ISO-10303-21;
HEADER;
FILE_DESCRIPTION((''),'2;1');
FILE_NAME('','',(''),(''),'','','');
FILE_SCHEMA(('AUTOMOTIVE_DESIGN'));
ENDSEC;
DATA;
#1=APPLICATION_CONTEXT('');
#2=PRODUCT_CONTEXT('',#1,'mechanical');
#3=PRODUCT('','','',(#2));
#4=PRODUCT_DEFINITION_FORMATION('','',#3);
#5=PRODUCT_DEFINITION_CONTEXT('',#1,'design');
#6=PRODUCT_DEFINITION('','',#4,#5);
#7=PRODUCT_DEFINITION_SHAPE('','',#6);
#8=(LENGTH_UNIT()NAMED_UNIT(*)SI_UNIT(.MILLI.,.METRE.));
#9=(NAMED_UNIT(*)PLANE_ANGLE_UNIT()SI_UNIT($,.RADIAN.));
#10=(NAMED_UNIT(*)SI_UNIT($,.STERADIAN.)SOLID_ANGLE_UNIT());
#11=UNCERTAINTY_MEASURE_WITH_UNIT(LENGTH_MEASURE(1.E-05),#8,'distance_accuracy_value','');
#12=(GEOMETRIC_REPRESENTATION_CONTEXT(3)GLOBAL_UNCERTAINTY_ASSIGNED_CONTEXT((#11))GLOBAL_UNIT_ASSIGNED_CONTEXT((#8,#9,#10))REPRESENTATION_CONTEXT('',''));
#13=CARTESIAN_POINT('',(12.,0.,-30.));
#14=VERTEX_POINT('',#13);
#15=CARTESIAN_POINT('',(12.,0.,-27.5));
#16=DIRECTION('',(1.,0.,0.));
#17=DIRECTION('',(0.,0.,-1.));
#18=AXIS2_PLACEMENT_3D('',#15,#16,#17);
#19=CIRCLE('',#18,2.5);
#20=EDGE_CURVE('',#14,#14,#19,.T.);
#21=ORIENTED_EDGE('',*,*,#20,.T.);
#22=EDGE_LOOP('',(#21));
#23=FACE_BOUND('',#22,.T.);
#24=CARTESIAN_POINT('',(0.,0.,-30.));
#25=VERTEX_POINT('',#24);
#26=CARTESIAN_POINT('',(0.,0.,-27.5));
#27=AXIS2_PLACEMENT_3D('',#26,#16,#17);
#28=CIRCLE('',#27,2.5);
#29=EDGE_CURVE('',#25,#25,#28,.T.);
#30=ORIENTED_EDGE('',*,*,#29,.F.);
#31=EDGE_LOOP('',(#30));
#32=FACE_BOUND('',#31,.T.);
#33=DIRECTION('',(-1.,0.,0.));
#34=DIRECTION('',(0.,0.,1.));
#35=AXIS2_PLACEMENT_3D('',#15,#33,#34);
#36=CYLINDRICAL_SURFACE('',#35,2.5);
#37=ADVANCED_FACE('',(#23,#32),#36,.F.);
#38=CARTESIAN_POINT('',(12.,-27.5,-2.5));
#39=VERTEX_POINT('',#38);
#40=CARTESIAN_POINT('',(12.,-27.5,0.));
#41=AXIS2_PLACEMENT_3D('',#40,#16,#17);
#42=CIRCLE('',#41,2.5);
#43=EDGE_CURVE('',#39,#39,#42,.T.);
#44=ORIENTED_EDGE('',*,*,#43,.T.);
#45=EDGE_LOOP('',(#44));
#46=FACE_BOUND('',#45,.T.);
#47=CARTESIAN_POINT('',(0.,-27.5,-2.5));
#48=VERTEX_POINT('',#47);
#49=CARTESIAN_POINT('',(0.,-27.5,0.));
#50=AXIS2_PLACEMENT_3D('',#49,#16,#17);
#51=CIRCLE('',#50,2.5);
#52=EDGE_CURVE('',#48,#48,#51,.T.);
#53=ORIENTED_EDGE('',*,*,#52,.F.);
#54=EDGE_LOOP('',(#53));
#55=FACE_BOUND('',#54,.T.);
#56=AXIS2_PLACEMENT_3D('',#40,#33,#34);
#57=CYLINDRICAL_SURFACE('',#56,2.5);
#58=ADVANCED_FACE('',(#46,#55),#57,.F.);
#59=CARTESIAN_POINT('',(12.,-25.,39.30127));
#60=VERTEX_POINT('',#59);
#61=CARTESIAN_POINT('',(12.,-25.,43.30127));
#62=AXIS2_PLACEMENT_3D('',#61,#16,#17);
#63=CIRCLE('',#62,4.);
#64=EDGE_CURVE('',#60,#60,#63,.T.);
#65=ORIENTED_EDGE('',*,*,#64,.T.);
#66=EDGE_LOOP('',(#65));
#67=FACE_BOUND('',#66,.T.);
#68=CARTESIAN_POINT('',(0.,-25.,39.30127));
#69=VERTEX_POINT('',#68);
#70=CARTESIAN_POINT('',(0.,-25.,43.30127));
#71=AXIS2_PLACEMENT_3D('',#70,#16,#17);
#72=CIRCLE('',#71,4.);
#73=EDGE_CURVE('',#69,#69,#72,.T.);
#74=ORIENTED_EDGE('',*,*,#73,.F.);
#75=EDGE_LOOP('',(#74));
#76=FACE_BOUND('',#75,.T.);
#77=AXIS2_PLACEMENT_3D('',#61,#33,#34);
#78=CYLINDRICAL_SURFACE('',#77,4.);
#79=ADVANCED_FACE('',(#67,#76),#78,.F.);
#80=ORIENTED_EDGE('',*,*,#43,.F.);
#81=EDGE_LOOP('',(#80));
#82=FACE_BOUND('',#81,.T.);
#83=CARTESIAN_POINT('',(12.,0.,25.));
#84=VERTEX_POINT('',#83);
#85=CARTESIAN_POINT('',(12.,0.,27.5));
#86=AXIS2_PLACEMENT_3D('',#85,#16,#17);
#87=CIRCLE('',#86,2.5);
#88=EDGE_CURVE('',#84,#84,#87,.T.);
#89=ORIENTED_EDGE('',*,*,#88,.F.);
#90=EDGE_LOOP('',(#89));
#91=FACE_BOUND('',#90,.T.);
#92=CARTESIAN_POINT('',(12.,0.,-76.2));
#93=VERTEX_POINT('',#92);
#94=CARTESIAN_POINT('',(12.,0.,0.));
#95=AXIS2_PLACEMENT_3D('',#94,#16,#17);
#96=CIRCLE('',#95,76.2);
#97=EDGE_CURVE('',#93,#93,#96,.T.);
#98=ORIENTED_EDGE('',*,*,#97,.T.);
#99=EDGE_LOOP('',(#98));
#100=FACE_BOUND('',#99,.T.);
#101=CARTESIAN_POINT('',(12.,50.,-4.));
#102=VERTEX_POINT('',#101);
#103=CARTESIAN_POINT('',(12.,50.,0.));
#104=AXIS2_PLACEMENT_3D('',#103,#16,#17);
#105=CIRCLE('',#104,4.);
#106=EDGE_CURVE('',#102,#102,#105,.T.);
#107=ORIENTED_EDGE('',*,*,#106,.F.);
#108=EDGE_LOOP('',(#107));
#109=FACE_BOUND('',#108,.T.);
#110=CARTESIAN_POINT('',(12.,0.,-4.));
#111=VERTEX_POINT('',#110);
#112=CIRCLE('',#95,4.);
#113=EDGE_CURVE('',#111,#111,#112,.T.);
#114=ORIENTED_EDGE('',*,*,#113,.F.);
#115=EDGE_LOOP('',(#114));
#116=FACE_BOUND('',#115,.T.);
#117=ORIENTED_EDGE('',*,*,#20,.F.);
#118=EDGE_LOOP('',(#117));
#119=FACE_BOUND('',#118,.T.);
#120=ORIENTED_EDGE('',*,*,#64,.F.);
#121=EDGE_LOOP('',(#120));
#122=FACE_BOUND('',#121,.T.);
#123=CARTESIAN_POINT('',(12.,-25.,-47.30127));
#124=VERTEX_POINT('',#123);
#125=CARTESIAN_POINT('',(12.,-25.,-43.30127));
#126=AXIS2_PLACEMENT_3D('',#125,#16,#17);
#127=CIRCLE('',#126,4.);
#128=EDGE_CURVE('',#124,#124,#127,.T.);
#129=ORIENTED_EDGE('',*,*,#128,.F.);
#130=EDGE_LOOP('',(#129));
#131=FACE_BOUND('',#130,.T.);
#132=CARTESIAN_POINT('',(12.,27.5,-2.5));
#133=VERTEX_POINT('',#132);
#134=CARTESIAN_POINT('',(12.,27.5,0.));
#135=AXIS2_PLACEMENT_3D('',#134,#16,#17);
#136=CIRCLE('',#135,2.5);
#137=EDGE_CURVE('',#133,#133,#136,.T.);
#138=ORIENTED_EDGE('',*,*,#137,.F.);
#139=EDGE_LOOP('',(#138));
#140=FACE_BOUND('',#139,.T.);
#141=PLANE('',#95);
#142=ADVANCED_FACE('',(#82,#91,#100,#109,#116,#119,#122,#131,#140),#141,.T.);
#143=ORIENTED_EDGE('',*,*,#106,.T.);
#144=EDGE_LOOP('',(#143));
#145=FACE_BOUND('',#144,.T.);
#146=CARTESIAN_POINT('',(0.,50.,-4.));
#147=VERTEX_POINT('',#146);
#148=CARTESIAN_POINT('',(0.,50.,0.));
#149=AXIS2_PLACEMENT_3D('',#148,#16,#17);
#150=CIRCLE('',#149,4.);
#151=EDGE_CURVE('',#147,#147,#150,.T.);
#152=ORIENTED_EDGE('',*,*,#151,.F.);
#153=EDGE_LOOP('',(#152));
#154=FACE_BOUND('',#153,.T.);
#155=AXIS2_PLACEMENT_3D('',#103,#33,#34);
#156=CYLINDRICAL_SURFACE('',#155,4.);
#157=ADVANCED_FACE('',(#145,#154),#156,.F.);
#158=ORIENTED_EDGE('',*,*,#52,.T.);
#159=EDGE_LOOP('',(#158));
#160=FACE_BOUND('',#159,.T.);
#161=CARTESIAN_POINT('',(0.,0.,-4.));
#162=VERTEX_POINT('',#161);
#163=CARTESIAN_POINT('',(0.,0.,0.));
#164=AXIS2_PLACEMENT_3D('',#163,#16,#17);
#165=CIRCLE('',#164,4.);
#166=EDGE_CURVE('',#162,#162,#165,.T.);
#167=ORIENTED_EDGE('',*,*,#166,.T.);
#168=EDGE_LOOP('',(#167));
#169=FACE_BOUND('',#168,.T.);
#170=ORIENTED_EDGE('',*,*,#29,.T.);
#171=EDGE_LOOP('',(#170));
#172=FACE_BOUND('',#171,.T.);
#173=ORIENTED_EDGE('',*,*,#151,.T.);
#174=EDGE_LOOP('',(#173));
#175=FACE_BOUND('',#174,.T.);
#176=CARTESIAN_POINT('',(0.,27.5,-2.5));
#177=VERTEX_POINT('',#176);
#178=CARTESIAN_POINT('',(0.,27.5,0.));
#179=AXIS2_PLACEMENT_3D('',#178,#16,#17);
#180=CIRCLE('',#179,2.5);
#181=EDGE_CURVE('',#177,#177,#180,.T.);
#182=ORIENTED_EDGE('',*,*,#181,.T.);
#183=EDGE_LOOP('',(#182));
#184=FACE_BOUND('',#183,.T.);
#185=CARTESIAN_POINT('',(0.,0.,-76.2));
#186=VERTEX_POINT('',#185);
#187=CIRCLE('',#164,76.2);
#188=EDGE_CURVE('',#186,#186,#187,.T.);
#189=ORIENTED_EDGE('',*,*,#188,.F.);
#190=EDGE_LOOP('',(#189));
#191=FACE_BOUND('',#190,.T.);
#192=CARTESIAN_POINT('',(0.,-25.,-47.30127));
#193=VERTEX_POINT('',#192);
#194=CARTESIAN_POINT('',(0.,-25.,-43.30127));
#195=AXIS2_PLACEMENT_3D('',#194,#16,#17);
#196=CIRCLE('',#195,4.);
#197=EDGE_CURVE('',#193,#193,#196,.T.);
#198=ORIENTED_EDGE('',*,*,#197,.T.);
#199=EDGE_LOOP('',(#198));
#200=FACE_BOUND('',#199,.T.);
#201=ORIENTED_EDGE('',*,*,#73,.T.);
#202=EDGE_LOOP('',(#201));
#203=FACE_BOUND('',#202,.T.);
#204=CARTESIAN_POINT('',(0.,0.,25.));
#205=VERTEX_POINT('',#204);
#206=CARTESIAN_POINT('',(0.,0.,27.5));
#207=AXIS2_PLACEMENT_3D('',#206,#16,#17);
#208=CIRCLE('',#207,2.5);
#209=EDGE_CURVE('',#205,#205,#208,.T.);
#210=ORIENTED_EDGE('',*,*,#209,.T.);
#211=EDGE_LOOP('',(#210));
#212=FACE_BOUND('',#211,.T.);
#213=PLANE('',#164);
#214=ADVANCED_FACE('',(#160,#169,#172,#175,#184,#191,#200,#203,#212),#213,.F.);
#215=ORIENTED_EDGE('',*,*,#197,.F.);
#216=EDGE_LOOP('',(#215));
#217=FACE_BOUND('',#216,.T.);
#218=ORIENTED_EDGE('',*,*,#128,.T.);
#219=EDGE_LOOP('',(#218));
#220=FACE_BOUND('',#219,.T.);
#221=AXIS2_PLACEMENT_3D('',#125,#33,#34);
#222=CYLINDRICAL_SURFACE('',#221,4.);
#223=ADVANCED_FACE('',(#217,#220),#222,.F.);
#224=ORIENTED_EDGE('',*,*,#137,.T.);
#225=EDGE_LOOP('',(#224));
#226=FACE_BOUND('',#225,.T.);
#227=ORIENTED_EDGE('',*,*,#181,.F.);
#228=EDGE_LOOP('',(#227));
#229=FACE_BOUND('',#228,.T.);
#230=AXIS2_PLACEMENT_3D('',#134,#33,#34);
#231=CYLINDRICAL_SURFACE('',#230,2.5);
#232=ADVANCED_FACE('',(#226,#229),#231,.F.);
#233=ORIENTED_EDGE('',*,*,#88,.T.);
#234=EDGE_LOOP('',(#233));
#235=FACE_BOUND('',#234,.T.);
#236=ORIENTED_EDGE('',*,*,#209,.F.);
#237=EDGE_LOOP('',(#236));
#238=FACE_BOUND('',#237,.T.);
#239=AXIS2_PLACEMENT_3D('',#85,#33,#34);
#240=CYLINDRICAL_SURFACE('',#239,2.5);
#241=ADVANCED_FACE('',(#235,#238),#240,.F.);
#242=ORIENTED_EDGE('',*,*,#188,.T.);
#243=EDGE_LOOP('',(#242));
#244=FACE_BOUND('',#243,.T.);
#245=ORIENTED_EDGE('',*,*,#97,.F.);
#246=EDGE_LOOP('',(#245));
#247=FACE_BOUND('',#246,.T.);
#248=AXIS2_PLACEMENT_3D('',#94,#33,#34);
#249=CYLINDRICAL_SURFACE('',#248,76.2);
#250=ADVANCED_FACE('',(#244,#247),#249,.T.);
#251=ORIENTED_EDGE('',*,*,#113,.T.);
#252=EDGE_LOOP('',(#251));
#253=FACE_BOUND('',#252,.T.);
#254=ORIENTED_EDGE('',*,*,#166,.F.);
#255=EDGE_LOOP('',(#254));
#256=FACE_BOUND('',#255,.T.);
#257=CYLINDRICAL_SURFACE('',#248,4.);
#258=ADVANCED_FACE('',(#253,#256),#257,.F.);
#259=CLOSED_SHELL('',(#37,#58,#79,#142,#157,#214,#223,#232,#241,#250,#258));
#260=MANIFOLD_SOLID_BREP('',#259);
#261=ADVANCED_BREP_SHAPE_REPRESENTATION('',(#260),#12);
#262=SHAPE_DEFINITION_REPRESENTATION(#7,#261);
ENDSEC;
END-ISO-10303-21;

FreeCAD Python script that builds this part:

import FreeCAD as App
import Part
import Sketcher
from FreeCAD import Vector

doc = App.newDocument("Part")
params = doc.addObject("Spreadsheet::Sheet", "Params")
for row, (alias, value) in enumerate([
    ("sketch1_diameter", "8 mm"),
    ("sketch1_diameter2", "5 mm"),
    ("sketch1_diameter3", "152.4 mm"),
    ("pad1_length", "12 mm"),
], start=1):
    params.set(f"A{row}", alias)
    params.set(f"B{row}", "=" + value)
    params.setAlias(f"B{row}", alias)

body = doc.addObject("PartDesign::Body", "Body")

sketch1 = body.newObject("Sketcher::SketchObject", "Sketch")
sketch1.AttachmentSupport = (doc.getObject("YZ_Plane"), [""])
sketch1.MapMode = "FlatFace"
sketch1.addGeometry([
    Part.Circle(Vector(0, 0, 0), Vector(0, 0, 1), 76.2),
    Part.Circle(Vector(-25, 43.3, 0), Vector(0, 0, 1), 4),
    Part.Circle(Vector(0, 27.5, 0), Vector(0, 0, 1), 2.5),
    Part.Circle(Vector(-27.5, 0, 0), Vector(0, 0, 1), 2.5),
    Part.Circle(Vector(-25, -43.3, 0), Vector(0, 0, 1), 4),
    Part.Circle(Vector(0, 0, 0), Vector(0, 0, 1), 4),
    Part.Circle(Vector(0, -27.5, 0), Vector(0, 0, 1), 2.5),
    Part.Circle(Vector(27.5, 0, 0), Vector(0, 0, 1), 2.5),
    Part.Circle(Vector(50, 0, 0), Vector(0, 0, 1), 4),
], False)
sketch1.addConstraint([
    Sketcher.Constraint("Coincident", 0, 3, -1, 1),
    Sketcher.Constraint("Coincident", 5, 3, -1, 1),
    Sketcher.Constraint("Equal", 2, 3),
    Sketcher.Constraint("Equal", 1, 4),
    Sketcher.Constraint("Equal", 4, 5),
    Sketcher.Constraint("Equal", 3, 6),
    Sketcher.Constraint("Equal", 6, 7),
    Sketcher.Constraint("Equal", 5, 8),
    Sketcher.Constraint("Symmetric", 2, 3, 6, 3, -1, 1),
    Sketcher.Constraint("Symmetric", 3, 3, 7, 3, -1, 1),
    Sketcher.Constraint("Symmetric", 1, 3, 4, 3, -1),
    Sketcher.Constraint("PointOnObject", 2, 3, -2),
    Sketcher.Constraint("PointOnObject", 3, 3, -1),
    Sketcher.Constraint("PointOnObject", 8, 3, -1),
    Sketcher.Constraint("Diameter", 1, 8.0),
    Sketcher.Constraint("Diameter", 2, 5.0),
    Sketcher.Constraint("Diameter", 0, 152.4),
    Sketcher.Constraint("DistanceX", 1, 3, -1, 1, 25.0),
    Sketcher.Constraint("DistanceX", -1, 1, 8, 3, 50.0),
    Sketcher.Constraint("DistanceY", 6, 3, 2, 3, 55.0),
    Sketcher.Constraint("DistanceX", 3, 3, 7, 3, 55.0),
    Sketcher.Constraint("DistanceY", -1, 1, 1, 3, 43.30127),
])
sketch1.setExpression("Constraints[14]", "Params.sketch1_diameter")
sketch1.setExpression("Constraints[15]", "Params.sketch1_diameter2")
sketch1.setExpression("Constraints[16]", "Params.sketch1_diameter3")
pad1 = body.newObject("PartDesign::Pad", "Pad")
pad1.Profile = sketch1
pad1.setExpression("Length", "Params.pad1_length")

doc.recompute()
